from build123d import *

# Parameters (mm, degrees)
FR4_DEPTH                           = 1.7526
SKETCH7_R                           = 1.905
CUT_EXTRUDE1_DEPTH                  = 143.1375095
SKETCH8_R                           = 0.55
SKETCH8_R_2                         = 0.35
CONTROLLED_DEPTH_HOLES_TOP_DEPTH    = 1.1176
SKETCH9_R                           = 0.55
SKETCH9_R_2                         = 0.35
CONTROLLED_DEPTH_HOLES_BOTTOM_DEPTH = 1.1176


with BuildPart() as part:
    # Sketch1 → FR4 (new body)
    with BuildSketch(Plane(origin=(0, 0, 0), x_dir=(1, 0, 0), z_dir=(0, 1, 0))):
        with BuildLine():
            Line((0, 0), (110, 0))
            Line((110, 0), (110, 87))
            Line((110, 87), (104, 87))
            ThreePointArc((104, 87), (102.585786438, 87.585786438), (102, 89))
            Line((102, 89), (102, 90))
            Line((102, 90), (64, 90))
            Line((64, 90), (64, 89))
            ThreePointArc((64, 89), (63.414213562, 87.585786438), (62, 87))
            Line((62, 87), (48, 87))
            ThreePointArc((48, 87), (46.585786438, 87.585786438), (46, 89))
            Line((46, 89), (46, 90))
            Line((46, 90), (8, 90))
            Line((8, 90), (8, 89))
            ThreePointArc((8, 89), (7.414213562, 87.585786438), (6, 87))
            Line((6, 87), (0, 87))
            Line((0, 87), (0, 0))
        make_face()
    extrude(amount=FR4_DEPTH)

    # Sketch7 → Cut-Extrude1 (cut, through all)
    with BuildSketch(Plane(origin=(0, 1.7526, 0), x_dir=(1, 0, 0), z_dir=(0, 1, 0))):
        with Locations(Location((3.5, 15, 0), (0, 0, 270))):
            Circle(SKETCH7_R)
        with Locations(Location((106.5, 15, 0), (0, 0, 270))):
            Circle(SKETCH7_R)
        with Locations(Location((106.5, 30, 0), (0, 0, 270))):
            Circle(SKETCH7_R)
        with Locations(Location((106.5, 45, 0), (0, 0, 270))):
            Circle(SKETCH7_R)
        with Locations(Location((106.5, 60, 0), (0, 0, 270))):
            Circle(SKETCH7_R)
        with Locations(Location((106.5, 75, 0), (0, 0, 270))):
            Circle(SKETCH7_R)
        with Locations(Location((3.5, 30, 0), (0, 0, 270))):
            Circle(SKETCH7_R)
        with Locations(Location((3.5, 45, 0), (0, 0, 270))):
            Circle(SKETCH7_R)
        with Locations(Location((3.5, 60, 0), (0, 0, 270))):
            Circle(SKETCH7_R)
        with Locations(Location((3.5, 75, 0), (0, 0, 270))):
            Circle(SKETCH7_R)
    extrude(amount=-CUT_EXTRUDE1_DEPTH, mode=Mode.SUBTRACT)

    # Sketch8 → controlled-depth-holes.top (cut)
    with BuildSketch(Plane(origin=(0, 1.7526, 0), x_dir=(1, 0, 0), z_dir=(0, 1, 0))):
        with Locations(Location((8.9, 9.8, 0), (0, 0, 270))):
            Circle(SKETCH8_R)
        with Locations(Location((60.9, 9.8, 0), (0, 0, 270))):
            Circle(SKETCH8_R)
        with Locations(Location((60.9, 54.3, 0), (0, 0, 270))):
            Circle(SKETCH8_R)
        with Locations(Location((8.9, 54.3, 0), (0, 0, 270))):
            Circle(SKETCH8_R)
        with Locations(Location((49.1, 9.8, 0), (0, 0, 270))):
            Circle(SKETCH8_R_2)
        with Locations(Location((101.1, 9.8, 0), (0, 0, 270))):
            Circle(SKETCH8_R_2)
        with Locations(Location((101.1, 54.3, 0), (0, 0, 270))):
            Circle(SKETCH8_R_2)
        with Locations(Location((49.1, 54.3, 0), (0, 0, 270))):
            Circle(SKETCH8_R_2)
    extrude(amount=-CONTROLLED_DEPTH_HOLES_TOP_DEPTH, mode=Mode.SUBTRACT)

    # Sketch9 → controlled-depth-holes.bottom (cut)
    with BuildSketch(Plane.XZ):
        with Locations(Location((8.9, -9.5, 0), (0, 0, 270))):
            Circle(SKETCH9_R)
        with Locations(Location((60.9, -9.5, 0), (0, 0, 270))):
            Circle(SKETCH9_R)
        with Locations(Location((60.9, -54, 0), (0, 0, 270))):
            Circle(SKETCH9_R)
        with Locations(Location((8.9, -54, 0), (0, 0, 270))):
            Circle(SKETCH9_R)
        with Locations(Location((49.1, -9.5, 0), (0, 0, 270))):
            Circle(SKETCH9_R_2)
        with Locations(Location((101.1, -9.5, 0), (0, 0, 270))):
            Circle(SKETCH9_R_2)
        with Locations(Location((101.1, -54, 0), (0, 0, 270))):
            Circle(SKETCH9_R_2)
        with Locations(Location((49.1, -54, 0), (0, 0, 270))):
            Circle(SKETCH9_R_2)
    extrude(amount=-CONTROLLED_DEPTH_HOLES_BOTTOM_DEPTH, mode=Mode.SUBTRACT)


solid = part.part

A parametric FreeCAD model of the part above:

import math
import FreeCAD as App
import Part
import Sketcher
from FreeCAD import Vector
Q = App.Units.Quantity

doc = App.newDocument("Part")
body = doc.addObject("PartDesign::Body", "Body")

sketch1 = doc.addObject("Sketcher::SketchObject", "Sketch")
body.addObject(sketch1)
sketch1.AttachmentSupport = (doc.XZ_Plane, [""])
sketch1.MapMode = "FlatFace"
sketch1.addGeometry([
    Part.LineSegment(Vector(0, 0, 0), Vector(110, 0, 0)),
    Part.LineSegment(Vector(110, 0, 0), Vector(110, -87, 0)),
    Part.LineSegment(Vector(110, -87, 0), Vector(104, -87, 0)),
    Part.ArcOfCircle(Part.Circle(Vector(104, -89, 0), Vector(0, 0, 1), 2), math.radians(90), math.radians(180)),
    Part.LineSegment(Vector(102, -89, 0), Vector(102, -90, 0)),
    Part.LineSegment(Vector(102, -90, 0), Vector(64, -90, 0)),
    Part.LineSegment(Vector(64, -90, 0), Vector(64, -89, 0)),
    Part.ArcOfCircle(Part.Circle(Vector(62, -89, 0), Vector(0, 0, 1), 2), math.radians(0), math.radians(90)),
    Part.LineSegment(Vector(62, -87, 0), Vector(48, -87, 0)),
    Part.ArcOfCircle(Part.Circle(Vector(48, -89, 0), Vector(0, 0, 1), 2), math.radians(90), math.radians(180)),
    Part.LineSegment(Vector(46, -89, 0), Vector(46, -90, 0)),
    Part.LineSegment(Vector(46, -90, 0), Vector(8, -90, 0)),
    Part.LineSegment(Vector(8, -90, 0), Vector(8, -89, 0)),
    Part.ArcOfCircle(Part.Circle(Vector(6, -89, 0), Vector(0, 0, 1), 2), math.radians(0), math.radians(90)),
    Part.LineSegment(Vector(6, -87, 0), Vector(0, -87, 0)),
    Part.LineSegment(Vector(0, -87, 0), Vector(0, 0, 0)),
], False)
sketch1.addConstraint([
    Sketcher.Constraint("Coincident", 0, 2, 1, 1),
    Sketcher.Constraint("Coincident", 1, 2, 2, 1),
    Sketcher.Constraint("Tangent", 2, 2, 3, 1),
    Sketcher.Constraint("Tangent", 3, 2, 4, 1),
    Sketcher.Constraint("Coincident", 4, 2, 5, 1),
    Sketcher.Constraint("Coincident", 5, 2, 6, 1),
    Sketcher.Constraint("Tangent", 6, 2, 7, 1),
    Sketcher.Constraint("Tangent", 7, 2, 8, 1),
    Sketcher.Constraint("Tangent", 8, 2, 9, 1),
    Sketcher.Constraint("Tangent", 9, 2, 10, 1),
    Sketcher.Constraint("Coincident", 10, 2, 11, 1),
    Sketcher.Constraint("Coincident", 11, 2, 12, 1),
    Sketcher.Constraint("Tangent", 12, 2, 13, 1),
    Sketcher.Constraint("Tangent", 13, 2, 14, 1),
    Sketcher.Constraint("Coincident", 14, 2, 15, 1),
    Sketcher.Constraint("Coincident", 15, 2, 0, 1),
    Sketcher.Constraint("Horizontal", 0),
    Sketcher.Constraint("Vertical", 1),
    Sketcher.Constraint("Horizontal", 2),
    Sketcher.Constraint("Vertical", 4),
    Sketcher.Constraint("Horizontal", 5),
    Sketcher.Constraint("Vertical", 6),
    Sketcher.Constraint("Horizontal", 8),
    Sketcher.Constraint("Vertical", 10),
    Sketcher.Constraint("Horizontal", 11),
    Sketcher.Constraint("Vertical", 12),
    Sketcher.Constraint("Horizontal", 14),
    Sketcher.Constraint("Vertical", 15),
    Sketcher.Constraint("Coincident", 15, 2, -1, 1),
    Sketcher.Constraint("Equal", 3, 7),
    Sketcher.Constraint("Equal", 7, 9),
    Sketcher.Constraint("Equal", 9, 13),
    Sketcher.Constraint("Horizontal", 3, 3, 7, 3),
    Sketcher.Constraint("Horizontal", 9, 3, 13, 3),
    Sketcher.Constraint("Horizontal", 5, 2, 10, 2),
    Sketcher.Constraint("Equal", 5, 11),
    Sketcher.Constraint("Equal", 2, 14),
    Sketcher.Constraint("Radius", 3, Q("2 mm")),
    Sketcher.Constraint("DistanceX", 0, 1, 0, 2, Q("110 mm")),
    Sketcher.Constraint("DistanceX", 2, 2, 2, 1, Q("6 mm")),
    Sketcher.Constraint("DistanceX", 5, 2, 5, 1, Q("38 mm")),
    Sketcher.Constraint("DistanceY", 1, 2, 1, 1, Q("87 mm")),
    Sketcher.Constraint("DistanceY", 4, 2, 4, 1, Q("1 mm")),
])
pad1 = doc.addObject("PartDesign::Pad", "Pad")
body.addObject(pad1)
pad1.Profile = sketch1
pad1.Length = 1.7526
pad1.Reversed = True

sketch2 = doc.addObject("Sketcher::SketchObject", "Sketch001")
body.addObject(sketch2)
sketch2.AttachmentSupport = (doc.XZ_Plane, [""])
sketch2.MapMode = "FlatFace"
sketch2.AttachmentOffset = App.Placement(Vector(0, 0, -1.7526), App.Rotation())
sketch2.addGeometry([
    Part.Circle(Vector(3.5, -15, 0), Vector(0, 0, 1), 1.905),
    Part.Circle(Vector(106.5, -15, 0), Vector(0, 0, 1), 1.905),
    Part.Circle(Vector(106.5, -30, 0), Vector(0, 0, 1), 1.905),
    Part.Circle(Vector(106.5, -45, 0), Vector(0, 0, 1), 1.905),
    Part.Circle(Vector(106.5, -60, 0), Vector(0, 0, 1), 1.905),
    Part.Circle(Vector(106.5, -75, 0), Vector(0, 0, 1), 1.905),
    Part.Circle(Vector(3.5, -30, 0), Vector(0, 0, 1), 1.905),
    Part.Circle(Vector(3.5, -45, 0), Vector(0, 0, 1), 1.905),
    Part.Circle(Vector(3.5, -60, 0), Vector(0, 0, 1), 1.905),
    Part.Circle(Vector(3.5, -75, 0), Vector(0, 0, 1), 1.905),
], False)
sketch2.addConstraint([
    Sketcher.Constraint("Equal", 0, 1),
    Sketcher.Constraint("Equal", 1, 2),
    Sketcher.Constraint("Equal", 2, 3),
    Sketcher.Constraint("Equal", 3, 4),
    Sketcher.Constraint("Equal", 4, 5),
    Sketcher.Constraint("Equal", 5, 6),
    Sketcher.Constraint("Equal", 6, 7),
    Sketcher.Constraint("Equal", 7, 8),
    Sketcher.Constraint("Equal", 8, 9),
    Sketcher.Constraint("Horizontal", 0, 3, 1, 3),
    Sketcher.Constraint("Horizontal", 2, 3, 6, 3),
    Sketcher.Constraint("Horizontal", 3, 3, 7, 3),
    Sketcher.Constraint("Horizontal", 4, 3, 8, 3),
    Sketcher.Constraint("Horizontal", 5, 3, 9, 3),
    Sketcher.Constraint("Vertical", 1, 3, 2, 3),
    Sketcher.Constraint("Vertical", 2, 3, 3, 3),
    Sketcher.Constraint("Vertical", 3, 3, 4, 3),
    Sketcher.Constraint("Vertical", 4, 3, 5, 3),
    Sketcher.Constraint("Vertical", 0, 3, 6, 3),
    Sketcher.Constraint("Vertical", 6, 3, 7, 3),
    Sketcher.Constraint("Vertical", 7, 3, 8, 3),
    Sketcher.Constraint("Vertical", 8, 3, 9, 3),
    Sketcher.Constraint("Diameter", 0, Q("3.81 mm")),
    Sketcher.Constraint("DistanceY", 0, 3, -1, 1, Q("15 mm")),
    Sketcher.Constraint("DistanceY", 2, 3, -1, 1, Q("30 mm")),
    Sketcher.Constraint("DistanceY", 3, 3, -1, 1, Q("45 mm")),
    Sketcher.Constraint("DistanceY", 4, 3, -1, 1, Q("60 mm")),
    Sketcher.Constraint("DistanceY", 5, 3, -1, 1, Q("75 mm")),
    Sketcher.Constraint("DistanceX", 0, 3, 1, 3, Q("103 mm")),
    Sketcher.Constraint("DistanceX", -1, 1, 0, 3, Q("3.5 mm")),
])
pocket1 = doc.addObject("PartDesign::Pocket", "Pocket")
body.addObject(pocket1)
pocket1.Profile = sketch2
pocket1.Type = "ThroughAll"
pocket1.Reversed = True

sketch3 = doc.addObject("Sketcher::SketchObject", "Sketch002")
body.addObject(sketch3)
sketch3.AttachmentSupport = (doc.XZ_Plane, [""])
sketch3.MapMode = "FlatFace"
sketch3.AttachmentOffset = App.Placement(Vector(0, 0, -1.7526), App.Rotation())
sketch3.addGeometry([
    Part.Circle(Vector(8.9, -9.8, 0), Vector(0, 0, 1), 0.55),
    Part.Circle(Vector(60.9, -9.8, 0), Vector(0, 0, 1), 0.55),
    Part.Circle(Vector(60.9, -54.3, 0), Vector(0, 0, 1), 0.55),
    Part.Circle(Vector(8.9, -54.3, 0), Vector(0, 0, 1), 0.55),
    Part.Circle(Vector(49.1, -9.8, 0), Vector(0, 0, 1), 0.35),
    Part.Circle(Vector(101.1, -9.8, 0), Vector(0, 0, 1), 0.35),
    Part.Circle(Vector(101.1, -54.3, 0), Vector(0, 0, 1), 0.35),
    Part.Circle(Vector(49.1, -54.3, 0), Vector(0, 0, 1), 0.35),
], False)
sketch3.addConstraint([
    Sketcher.Constraint("Equal", 0, 1),
    Sketcher.Constraint("Equal", 1, 2),
    Sketcher.Constraint("Equal", 2, 3),
    Sketcher.Constraint("Equal", 4, 5),
    Sketcher.Constraint("Equal", 5, 6),
    Sketcher.Constraint("Equal", 6, 7),
    Sketcher.Constraint("Horizontal", 0, 3, 1, 3),
    Sketcher.Constraint("Horizontal", 2, 3, 3, 3),
    Sketcher.Constraint("Horizontal", 1, 3, 4, 3),
    Sketcher.Constraint("Horizontal", 4, 3, 5, 3),
    Sketcher.Constraint("Horizontal", 3, 3, 6, 3),
    Sketcher.Constraint("Horizontal", 6, 3, 7, 3),
    Sketcher.Constraint("Vertical", 1, 3, 2, 3),
    Sketcher.Constraint("Vertical", 0, 3, 3, 3),
    Sketcher.Constraint("Vertical", 5, 3, 6, 3),
    Sketcher.Constraint("Vertical", 4, 3, 7, 3),
    Sketcher.Constraint("Diameter", 0, Q("1.1 mm")),
    Sketcher.Constraint("Diameter", 4, Q("0.7 mm")),
    Sketcher.Constraint("DistanceX", 0, 3, 1, 3, Q("52 mm")),
    Sketcher.Constraint("DistanceX", 4, 3, 5, 3, Q("52 mm")),
    Sketcher.Constraint("DistanceX", -1, 1, 0, 3, Q("8.9 mm")),
    Sketcher.Constraint("DistanceY", 0, 3, -1, 1, Q("9.8 mm")),
    Sketcher.Constraint("DistanceY", 2, 3, -1, 1, Q("54.3 mm")),
    Sketcher.Constraint("DistanceX", -1, 1, 4, 3, Q("49.1 mm")),
])
pocket2 = doc.addObject("PartDesign::Pocket", "Pocket001")
body.addObject(pocket2)
pocket2.Profile = sketch3
pocket2.Length = 1.1176
pocket2.Reversed = True

sketch4 = doc.addObject("Sketcher::SketchObject", "Sketch003")
body.addObject(sketch4)
sketch4.AttachmentSupport = (doc.XZ_Plane, [""])
sketch4.MapMode = "FlatFace"
sketch4.addGeometry([
    Part.Circle(Vector(8.9, -9.5, 0), Vector(0, 0, 1), 0.55),
    Part.Circle(Vector(60.9, -9.5, 0), Vector(0, 0, 1), 0.55),
    Part.Circle(Vector(60.9, -54, 0), Vector(0, 0, 1), 0.55),
    Part.Circle(Vector(8.9, -54, 0), Vector(0, 0, 1), 0.55),
    Part.Circle(Vector(49.1, -9.5, 0), Vector(0, 0, 1), 0.35),
    Part.Circle(Vector(101.1, -9.5, 0), Vector(0, 0, 1), 0.35),
    Part.Circle(Vector(101.1, -54, 0), Vector(0, 0, 1), 0.35),
    Part.Circle(Vector(49.1, -54, 0), Vector(0, 0, 1), 0.35),
], False)
sketch4.addConstraint([
    Sketcher.Constraint("Equal", 0, 1),
    Sketcher.Constraint("Equal", 1, 2),
    Sketcher.Constraint("Equal", 2, 3),
    Sketcher.Constraint("Equal", 4, 5),
    Sketcher.Constraint("Equal", 5, 6),
    Sketcher.Constraint("Equal", 6, 7),
    Sketcher.Constraint("Horizontal", 0, 3, 1, 3),
    Sketcher.Constraint("Horizontal", 2, 3, 3, 3),
    Sketcher.Constraint("Horizontal", 1, 3, 4, 3),
    Sketcher.Constraint("Horizontal", 4, 3, 5, 3),
    Sketcher.Constraint("Horizontal", 3, 3, 6, 3),
    Sketcher.Constraint("Horizontal", 6, 3, 7, 3),
    Sketcher.Constraint("Vertical", 1, 3, 2, 3),
    Sketcher.Constraint("Vertical", 0, 3, 3, 3),
    Sketcher.Constraint("Vertical", 5, 3, 6, 3),
    Sketcher.Constraint("Vertical", 4, 3, 7, 3),
    Sketcher.Constraint("Diameter", 0, Q("1.1 mm")),
    Sketcher.Constraint("Diameter", 4, Q("0.7 mm")),
    Sketcher.Constraint("DistanceY", 2, 3, -1, 1, Q("54 mm")),
    Sketcher.Constraint("DistanceX", 0, 3, 1, 3, Q("52 mm")),
    Sketcher.Constraint("DistanceX", 4, 3, 5, 3, Q("52 mm")),
    Sketcher.Constraint("DistanceX", -1, 1, 0, 3, Q("8.9 mm")),
    Sketcher.Constraint("DistanceY", 0, 3, -1, 1, Q("9.5 mm")),
    Sketcher.Constraint("DistanceX", -1, 1, 4, 3, Q("49.1 mm")),
])
pocket3 = doc.addObject("PartDesign::Pocket", "Pocket002")
body.addObject(pocket3)
pocket3.Profile = sketch4
pocket3.Length = 1.1176

doc.recompute()
